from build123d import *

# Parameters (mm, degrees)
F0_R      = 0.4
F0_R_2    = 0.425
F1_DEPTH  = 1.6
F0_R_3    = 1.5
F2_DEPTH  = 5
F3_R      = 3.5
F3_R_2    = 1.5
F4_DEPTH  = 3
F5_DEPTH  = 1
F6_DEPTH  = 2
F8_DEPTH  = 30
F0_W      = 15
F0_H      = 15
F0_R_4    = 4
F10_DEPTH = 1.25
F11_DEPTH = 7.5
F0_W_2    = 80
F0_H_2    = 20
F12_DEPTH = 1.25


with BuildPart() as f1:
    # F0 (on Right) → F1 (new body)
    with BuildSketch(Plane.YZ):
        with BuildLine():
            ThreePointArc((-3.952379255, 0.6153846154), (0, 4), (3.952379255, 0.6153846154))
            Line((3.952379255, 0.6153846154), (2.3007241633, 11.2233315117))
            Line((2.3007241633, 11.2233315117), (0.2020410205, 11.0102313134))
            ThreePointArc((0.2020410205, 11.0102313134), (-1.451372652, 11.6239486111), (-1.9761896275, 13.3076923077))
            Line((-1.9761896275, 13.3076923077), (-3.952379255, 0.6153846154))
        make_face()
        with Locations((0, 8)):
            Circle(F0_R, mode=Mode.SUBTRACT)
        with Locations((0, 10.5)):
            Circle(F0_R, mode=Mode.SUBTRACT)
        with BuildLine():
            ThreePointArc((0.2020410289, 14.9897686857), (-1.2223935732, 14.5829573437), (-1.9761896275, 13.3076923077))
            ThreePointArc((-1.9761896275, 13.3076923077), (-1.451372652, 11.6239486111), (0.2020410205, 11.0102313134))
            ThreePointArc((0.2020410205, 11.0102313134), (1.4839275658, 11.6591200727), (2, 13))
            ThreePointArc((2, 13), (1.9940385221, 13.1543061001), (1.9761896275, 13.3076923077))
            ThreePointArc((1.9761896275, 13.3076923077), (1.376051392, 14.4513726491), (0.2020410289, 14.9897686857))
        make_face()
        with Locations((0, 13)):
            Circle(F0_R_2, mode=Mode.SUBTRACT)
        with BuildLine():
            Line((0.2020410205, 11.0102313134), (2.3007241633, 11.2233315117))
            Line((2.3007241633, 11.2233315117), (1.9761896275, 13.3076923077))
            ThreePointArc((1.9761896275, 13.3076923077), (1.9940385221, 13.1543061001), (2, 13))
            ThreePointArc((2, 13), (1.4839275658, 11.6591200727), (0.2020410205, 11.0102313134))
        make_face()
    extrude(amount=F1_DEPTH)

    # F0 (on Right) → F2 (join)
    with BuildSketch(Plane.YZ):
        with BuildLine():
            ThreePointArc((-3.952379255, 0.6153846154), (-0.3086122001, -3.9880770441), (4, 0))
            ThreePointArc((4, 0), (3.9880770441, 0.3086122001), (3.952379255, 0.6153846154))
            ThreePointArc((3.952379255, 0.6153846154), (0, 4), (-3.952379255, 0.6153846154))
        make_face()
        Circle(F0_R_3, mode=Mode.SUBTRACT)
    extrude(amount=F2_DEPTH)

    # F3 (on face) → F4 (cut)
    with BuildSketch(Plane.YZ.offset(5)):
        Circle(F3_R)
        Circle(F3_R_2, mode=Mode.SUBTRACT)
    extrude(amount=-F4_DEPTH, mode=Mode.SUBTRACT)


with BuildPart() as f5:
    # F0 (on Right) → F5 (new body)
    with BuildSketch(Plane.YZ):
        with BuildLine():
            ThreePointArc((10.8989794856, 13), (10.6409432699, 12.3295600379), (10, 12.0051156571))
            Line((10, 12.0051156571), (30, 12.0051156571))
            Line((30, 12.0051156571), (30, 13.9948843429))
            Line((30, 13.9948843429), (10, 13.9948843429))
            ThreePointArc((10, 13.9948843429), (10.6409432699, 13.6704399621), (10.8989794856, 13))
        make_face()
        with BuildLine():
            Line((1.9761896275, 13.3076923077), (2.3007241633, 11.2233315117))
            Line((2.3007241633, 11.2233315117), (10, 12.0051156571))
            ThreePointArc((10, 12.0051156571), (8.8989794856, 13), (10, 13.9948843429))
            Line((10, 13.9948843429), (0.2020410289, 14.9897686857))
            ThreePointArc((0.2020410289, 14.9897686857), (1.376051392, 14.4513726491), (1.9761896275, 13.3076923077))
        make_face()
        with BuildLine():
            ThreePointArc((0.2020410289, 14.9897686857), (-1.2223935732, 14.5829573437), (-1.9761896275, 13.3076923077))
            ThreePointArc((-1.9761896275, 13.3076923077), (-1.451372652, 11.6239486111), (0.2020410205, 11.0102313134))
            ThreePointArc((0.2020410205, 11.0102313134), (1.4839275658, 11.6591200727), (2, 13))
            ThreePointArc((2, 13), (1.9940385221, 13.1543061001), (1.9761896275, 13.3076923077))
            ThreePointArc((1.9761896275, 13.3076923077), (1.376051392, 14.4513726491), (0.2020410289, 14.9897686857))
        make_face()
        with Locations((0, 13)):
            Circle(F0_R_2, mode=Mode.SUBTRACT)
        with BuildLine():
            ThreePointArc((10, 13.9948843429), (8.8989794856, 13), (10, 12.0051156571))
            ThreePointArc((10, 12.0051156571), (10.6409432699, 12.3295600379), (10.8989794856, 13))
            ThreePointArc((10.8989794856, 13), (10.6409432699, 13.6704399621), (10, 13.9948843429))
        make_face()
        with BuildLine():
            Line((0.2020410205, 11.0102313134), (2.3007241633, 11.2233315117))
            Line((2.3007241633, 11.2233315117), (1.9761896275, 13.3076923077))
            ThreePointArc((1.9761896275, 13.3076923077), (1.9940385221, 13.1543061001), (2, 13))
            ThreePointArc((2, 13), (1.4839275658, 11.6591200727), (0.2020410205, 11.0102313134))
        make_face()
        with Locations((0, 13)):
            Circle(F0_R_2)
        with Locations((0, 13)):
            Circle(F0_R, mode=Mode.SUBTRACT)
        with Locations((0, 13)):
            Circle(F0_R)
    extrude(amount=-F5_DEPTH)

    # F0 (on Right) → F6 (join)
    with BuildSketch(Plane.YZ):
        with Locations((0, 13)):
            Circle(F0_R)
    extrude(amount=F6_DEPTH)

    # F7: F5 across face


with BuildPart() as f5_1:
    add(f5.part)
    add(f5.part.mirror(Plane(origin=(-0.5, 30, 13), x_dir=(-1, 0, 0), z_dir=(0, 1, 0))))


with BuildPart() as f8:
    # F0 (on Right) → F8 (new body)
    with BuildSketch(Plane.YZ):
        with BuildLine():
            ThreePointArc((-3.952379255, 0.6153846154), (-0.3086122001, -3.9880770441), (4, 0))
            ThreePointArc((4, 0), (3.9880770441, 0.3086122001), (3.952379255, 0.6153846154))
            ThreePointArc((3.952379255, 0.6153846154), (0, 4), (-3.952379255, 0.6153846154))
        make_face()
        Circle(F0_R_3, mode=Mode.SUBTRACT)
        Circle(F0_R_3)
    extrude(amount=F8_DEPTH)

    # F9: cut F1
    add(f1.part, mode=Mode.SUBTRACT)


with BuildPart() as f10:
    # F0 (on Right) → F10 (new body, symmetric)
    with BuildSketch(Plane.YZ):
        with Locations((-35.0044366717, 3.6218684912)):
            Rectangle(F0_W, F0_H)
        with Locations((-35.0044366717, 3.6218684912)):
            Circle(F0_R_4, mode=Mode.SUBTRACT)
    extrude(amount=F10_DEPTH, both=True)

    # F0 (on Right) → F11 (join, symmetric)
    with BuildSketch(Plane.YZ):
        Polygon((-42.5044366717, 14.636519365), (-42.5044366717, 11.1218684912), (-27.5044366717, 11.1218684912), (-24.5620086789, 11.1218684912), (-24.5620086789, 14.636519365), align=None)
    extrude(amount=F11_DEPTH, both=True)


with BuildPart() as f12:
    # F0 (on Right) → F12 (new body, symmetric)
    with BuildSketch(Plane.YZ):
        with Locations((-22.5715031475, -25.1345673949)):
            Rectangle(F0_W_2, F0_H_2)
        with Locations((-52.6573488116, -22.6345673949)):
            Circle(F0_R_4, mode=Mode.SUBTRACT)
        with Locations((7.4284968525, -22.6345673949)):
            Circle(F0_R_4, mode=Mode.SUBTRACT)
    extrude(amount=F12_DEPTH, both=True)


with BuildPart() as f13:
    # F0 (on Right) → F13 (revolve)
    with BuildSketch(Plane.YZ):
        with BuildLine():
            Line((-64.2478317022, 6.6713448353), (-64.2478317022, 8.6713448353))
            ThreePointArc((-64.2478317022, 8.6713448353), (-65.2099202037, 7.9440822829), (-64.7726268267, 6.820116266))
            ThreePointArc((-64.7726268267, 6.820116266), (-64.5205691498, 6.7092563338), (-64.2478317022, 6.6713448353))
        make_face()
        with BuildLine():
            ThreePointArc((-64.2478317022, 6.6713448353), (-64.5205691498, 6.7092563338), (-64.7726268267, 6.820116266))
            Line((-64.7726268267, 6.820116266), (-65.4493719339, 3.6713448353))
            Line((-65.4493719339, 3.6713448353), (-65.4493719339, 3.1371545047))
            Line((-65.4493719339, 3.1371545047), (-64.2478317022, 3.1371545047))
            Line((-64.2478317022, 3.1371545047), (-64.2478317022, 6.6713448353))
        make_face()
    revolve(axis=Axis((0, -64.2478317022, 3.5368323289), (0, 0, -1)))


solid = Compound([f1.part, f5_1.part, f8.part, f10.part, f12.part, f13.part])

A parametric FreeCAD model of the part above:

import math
import FreeCAD as App
import Part
import Sketcher

V = App.Vector
Q = App.Units.Quantity


def add_polygon(sketch, points):
    """Adds a closed chain of lines whose ends are joined by coincident constraints."""
    first, n = sketch.GeometryCount, len(points)
    for a, b in zip(points, points[1:] + points[:1]):
        sketch.addGeometry(Part.LineSegment(App.Vector(*a, 0), App.Vector(*b, 0)), False)
    for i in range(n):
        sketch.addConstraint(Sketcher.Constraint("Coincident", first + i, 2, first + (i + 1) % n, 1))

doc = App.newDocument("Part")
body = doc.addObject("PartDesign::Body", "Body")

sketch1 = doc.addObject("Sketcher::SketchObject", "Sketch")
body.addObject(sketch1)
sketch1.AttachmentSupport = (doc.YZ_Plane, [""])
sketch1.MapMode = "FlatFace"
sketch1.addGeometry([
    Part.ArcOfCircle(Part.Circle(V(0, 0, 0), V(0, 0, 1), 4), math.radians(8.849883), math.radians(171.150117)),
    Part.LineSegment(V(3.952379, 0.615385, 0), V(2.300724, 11.223332, 0)),
    Part.LineSegment(V(2.300724, 11.223332, 0), V(1.97619, 13.307692, 0)),
    Part.ArcOfCircle(Part.Circle(V(0, 13, 0), V(0, 0, 1), 2), math.radians(8.849883), math.radians(84.202061)),
    Part.ArcOfCircle(Part.Circle(V(0, 13, 0), V(0, 0, 1), 2), math.radians(84.202061), math.radians(171.150117)),
    Part.LineSegment(V(-1.97619, 13.307692, 0), V(-3.952379, 0.615385, 0)),
    Part.Circle(V(0, 8, 0), V(0, 0, 1), 0.4),
    Part.Circle(V(0, 10.5, 0), V(0, 0, 1), 0.4),
    Part.Circle(V(0, 13, 0), V(0, 0, 1), 0.425),
], False)
sketch1.addConstraint([
    Sketcher.Constraint("Tangent", 0, 1, 1, 1),
    Sketcher.Constraint("Coincident", 1, 2, 2, 1),
    Sketcher.Constraint("Tangent", 2, 2, 3, 1),
    Sketcher.Constraint("Tangent", 3, 2, 4, 1),
    Sketcher.Constraint("Tangent", 4, 2, 5, 1),
    Sketcher.Constraint("Tangent", 5, 2, 0, 2),
    Sketcher.Constraint("Coincident", 0, 3, -1, 1),
    Sketcher.Constraint("Coincident", 8, 3, 3, 3),
    Sketcher.Constraint("Equal", 3, 4),
    Sketcher.Constraint("Equal", 6, 7),
    Sketcher.Constraint("Symmetric", 2, 2, 4, 2, -2),
    Sketcher.Constraint("PointOnObject", 6, 3, -2),
    Sketcher.Constraint("PointOnObject", 7, 3, -2),
    Sketcher.Constraint("Radius", 0, Q("4 mm")),
    Sketcher.Constraint("Radius", 3, Q("2 mm")),
    Sketcher.Constraint("Diameter", 6, Q("0.8 mm")),
    Sketcher.Constraint("Diameter", 8, Q("0.85 mm")),
    Sketcher.Constraint("DistanceY", -1, 1, 3, 3, Q("13 mm")),
    Sketcher.Constraint("DistanceY", -1, 1, 6, 3, Q("8 mm")),
    Sketcher.Constraint("DistanceY", -1, 1, 7, 3, Q("10.5 mm")),
    Sketcher.Constraint("Distance", 1, Q("10.735758 mm")),
    Sketcher.Constraint("DistanceX", -1, 1, 3, 2, Q("0.202041 mm")),
])
pad1 = doc.addObject("PartDesign::Pad", "Pad")
body.addObject(pad1)
pad1.Profile = sketch1
pad1.Length = 1.6

sketch2 = doc.addObject("Sketcher::SketchObject", "Sketch001")
body.addObject(sketch2)
sketch2.AttachmentSupport = (doc.YZ_Plane, [""])
sketch2.MapMode = "FlatFace"
sketch2.addGeometry([
    Part.ArcOfCircle(Part.Circle(V(0, 0, 0), V(0, 0, 1), 4), math.radians(171.150117), math.radians(360)),
    Part.ArcOfCircle(Part.Circle(V(0, 0, 0), V(0, 0, 1), 4), math.radians(0), math.radians(8.849883)),
    Part.ArcOfCircle(Part.Circle(V(0, 0, 0), V(0, 0, 1), 4), math.radians(8.849883), math.radians(171.150117)),
    Part.Circle(V(0, 0, 0), V(0, 0, 1), 1.5),
], False)
sketch2.addConstraint([
    Sketcher.Constraint("Tangent", 0, 2, 1, 1),
    Sketcher.Constraint("Tangent", 1, 2, 2, 1),
    Sketcher.Constraint("Tangent", 2, 2, 0, 1),
    Sketcher.Constraint("Coincident", 0, 3, -1, 1),
    Sketcher.Constraint("Coincident", 3, 3, -1, 1),
    Sketcher.Constraint("PointOnObject", 0, 2, -1),
    Sketcher.Constraint("Horizontal", 1, 2, 2, 2),
    Sketcher.Constraint("Diameter", 3, Q("3 mm")),
    Sketcher.Constraint("Radius", 0, Q("4 mm")),
    Sketcher.Constraint("DistanceX", -1, 1, 1, 2, Q("3.952379 mm")),
])
pad2 = doc.addObject("PartDesign::Pad", "Pad001")
body.addObject(pad2)
pad2.Profile = sketch2
pad2.Length = 5

sketch3 = doc.addObject("Sketcher::SketchObject", "Sketch002")
body.addObject(sketch3)
sketch3.AttachmentSupport = (doc.YZ_Plane, [""])
sketch3.MapMode = "FlatFace"
sketch3.AttachmentOffset = App.Placement(V(0, 0, 5), App.Rotation())
sketch3.addGeometry([
    Part.Circle(V(0, 0, 0), V(0, 0, 1), 3.5),
    Part.Circle(V(0, 0, 0), V(0, 0, 1), 1.5),
], False)
sketch3.addConstraint([
    Sketcher.Constraint("Coincident", 0, 3, -1, 1),
    Sketcher.Constraint("Coincident", 1, 3, -1, 1),
    Sketcher.Constraint("Diameter", 0, Q("7 mm")),
    Sketcher.Constraint("Diameter", 1, Q("3 mm")),
])
pocket1 = doc.addObject("PartDesign::Pocket", "Pocket")
body.addObject(pocket1)
pocket1.Profile = sketch3
pocket1.Length = 3
body2 = doc.addObject("PartDesign::Body", "Body001")

sketch4 = doc.addObject("Sketcher::SketchObject", "Sketch003")
body2.addObject(sketch4)
sketch4.AttachmentSupport = (doc.getObject("YZ_Plane001"), [""])
sketch4.MapMode = "FlatFace"
sketch4.addGeometry([
    Part.LineSegment(V(10, 12.005116, 0), V(30, 12.005116, 0)),
    Part.LineSegment(V(30, 12.005116, 0), V(30, 13.994884, 0)),
    Part.LineSegment(V(30, 13.994884, 0), V(10, 13.994884, 0)),
    Part.LineSegment(V(10, 13.994884, 0), V(0.202041, 14.989769, 0)),
    Part.ArcOfCircle(Part.Circle(V(0, 13, 0), V(0, 0, 1), 2), math.radians(84.202061), math.radians(171.150117)),
    Part.ArcOfCircle(Part.Circle(V(0, 13, 0), V(0, 0, 1), 2), math.radians(171.150117), math.radians(275.797939)),
    Part.LineSegment(V(0.202041, 11.010231, 0), V(2.300724, 11.223332, 0)),
    Part.LineSegment(V(2.300724, 11.223332, 0), V(10, 12.005116, 0)),
], False)
sketch4.addConstraint([
    Sketcher.Constraint("Coincident", 0, 2, 1, 1),
    Sketcher.Constraint("Coincident", 1, 2, 2, 1),
    Sketcher.Constraint("Coincident", 2, 2, 3, 1),
    Sketcher.Constraint("Tangent", 3, 2, 4, 1),
    Sketcher.Constraint("Tangent", 4, 2, 5, 1),
    Sketcher.Constraint("Tangent", 5, 2, 6, 1),
    Sketcher.Constraint("Coincident", 6, 2, 7, 1),
    Sketcher.Constraint("Coincident", 7, 2, 0, 1),
    Sketcher.Constraint("Horizontal", 0),
    Sketcher.Constraint("Vertical", 1),
    Sketcher.Constraint("Horizontal", 2),
    Sketcher.Constraint("Equal", 4, 5),
    Sketcher.Constraint("PointOnObject", 4, 3, -2),
    Sketcher.Constraint("Parallel", 6, 7),
    Sketcher.Constraint("Vertical", 3, 2, 5, 2),
    Sketcher.Constraint("Vertical", 2, 2, 7, 2),
    Sketcher.Constraint("Radius", 4, Q("2 mm")),
    Sketcher.Constraint("DistanceX", 0, 1, 0, 2, Q("20 mm")),
    Sketcher.Constraint("DistanceY", -1, 1, 4, 3, Q("13 mm")),
    Sketcher.Constraint("DistanceX", -1, 1, 0, 2, Q("30 mm")),
    Sketcher.Constraint("DistanceY", 1, 1, 1, 2, Q("1.989769 mm")),
    Sketcher.Constraint("DistanceY", 5, 2, 6, 2, Q("0.2131 mm")),
    Sketcher.Constraint("DistanceX", 4, 2, -1, 1, Q("1.97619 mm")),
])
pad3 = doc.addObject("PartDesign::Pad", "Pad002")
body2.addObject(pad3)
pad3.Profile = sketch4
pad3.Length = 1
pad3.Reversed = True

sketch5 = doc.addObject("Sketcher::SketchObject", "Sketch004")
body2.addObject(sketch5)
sketch5.AttachmentSupport = (doc.getObject("YZ_Plane001"), [""])
sketch5.MapMode = "FlatFace"
sketch5.addGeometry(Part.Circle(V(0, 13, 0), V(0, 0, 1), 0.4), False)
sketch5.addConstraint([
    Sketcher.Constraint("PointOnObject", 0, 3, -2),
    Sketcher.Constraint("Diameter", 0, Q("0.8 mm")),
    Sketcher.Constraint("DistanceY", -1, 1, 0, 3, Q("13 mm")),
])
pad4 = doc.addObject("PartDesign::Pad", "Pad003")
body2.addObject(pad4)
pad4.Profile = sketch5
pad4.Length = 2
body3 = doc.addObject("PartDesign::Body", "Body002")
doc.recompute()

body3.BaseFeature = body2
doc.recompute()

mirroring = doc.addObject("Part::Mirroring", "Mirroring")
mirroring.Source = body2
mirroring.Base = V(-0.5, 30, 13)
mirroring.Normal = V(0, 1, 0)
body4 = doc.addObject("PartDesign::Body", "Body003")
body4.BaseFeature = mirroring
boolean = doc.addObject("PartDesign::Boolean", "Boolean")
body3.addObject(boolean)
boolean.Type = "Fuse"
boolean.addObjects([body4])
doc.recompute()
body5 = doc.addObject("PartDesign::Body", "Body004")

sketch6 = doc.addObject("Sketcher::SketchObject", "Sketch005")
body5.addObject(sketch6)
sketch6.AttachmentSupport = (doc.getObject("YZ_Plane004"), [""])
sketch6.MapMode = "FlatFace"
sketch6.addGeometry([
    Part.ArcOfCircle(Part.Circle(V(0, 0, 0), V(0, 0, 1), 4), math.radians(171.150117), math.radians(360)),
    Part.ArcOfCircle(Part.Circle(V(0, 0, 0), V(0, 0, 1), 4), math.radians(0), math.radians(8.849883)),
    Part.ArcOfCircle(Part.Circle(V(0, 0, 0), V(0, 0, 1), 4), math.radians(8.849883), math.radians(171.150117)),
], False)
sketch6.addConstraint([
    Sketcher.Constraint("Tangent", 0, 2, 1, 1),
    Sketcher.Constraint("Tangent", 1, 2, 2, 1),
    Sketcher.Constraint("Tangent", 2, 2, 0, 1),
    Sketcher.Constraint("Coincident", 0, 3, -1, 1),
    Sketcher.Constraint("PointOnObject", 0, 2, -1),
    Sketcher.Constraint("Horizontal", 1, 2, 2, 2),
    Sketcher.Constraint("Radius", 0, Q("4 mm")),
    Sketcher.Constraint("DistanceX", -1, 1, 1, 2, Q("3.952379 mm")),
])
pad5 = doc.addObject("PartDesign::Pad", "Pad004")
body5.addObject(pad5)
pad5.Profile = sketch6
pad5.Length = 30
doc.recompute()

body6 = doc.addObject("PartDesign::Body", "Body005")
body6.BaseFeature = body
boolean2 = doc.addObject("PartDesign::Boolean", "Boolean001")
body5.addObject(boolean2)
boolean2.Type = "Cut"
boolean2.addObjects([body6])
doc.recompute()
body7 = doc.addObject("PartDesign::Body", "Body006")

sketch7 = doc.addObject("Sketcher::SketchObject", "Sketch006")
body7.addObject(sketch7)
sketch7.AttachmentSupport = (doc.getObject("YZ_Plane006"), [""])
sketch7.MapMode = "FlatFace"
add_polygon(sketch7, [(-42.504437, 11.121868), (-42.504437, -3.878132), (-27.504437, -3.878132), (-27.504437, 11.121868)])
sketch7.addGeometry(Part.Circle(V(-35.004437, 3.621868, 0), V(0, 0, 1), 4), False)
sketch7.addConstraint([
    Sketcher.Constraint("Vertical", 0),
    Sketcher.Constraint("Horizontal", 1),
    Sketcher.Constraint("Vertical", 2),
    Sketcher.Constraint("Horizontal", 3),
    Sketcher.Constraint("Equal", 3, 0),
    Sketcher.Constraint("Diameter", 4, Q("8 mm")),
    Sketcher.Constraint("DistanceX", 1, 1, 1, 2, Q("15 mm")),
    Sketcher.Constraint("DistanceX", 0, 2, 4, 3, Q("7.5 mm")),
    Sketcher.Constraint("DistanceY", 0, 2, 4, 3, Q("7.5 mm")),
    Sketcher.Constraint("DistanceY", -1, 1, 4, 3, Q("3.621868 mm")),
    Sketcher.Constraint("DistanceX", 4, 3, -1, 1, Q("35.004437 mm")),
])
pad6 = doc.addObject("PartDesign::Pad", "Pad005")
body7.addObject(pad6)
pad6.Profile = sketch7
pad6.Length = 2.5
pad6.Midplane = True

sketch8 = doc.addObject("Sketcher::SketchObject", "Sketch007")
body7.addObject(sketch8)
sketch8.AttachmentSupport = (doc.getObject("YZ_Plane006"), [""])
sketch8.MapMode = "FlatFace"
add_polygon(sketch8, [(-42.504437, 14.636519), (-42.504437, 11.121868), (-24.562009, 11.121868), (-24.562009, 14.636519)])
sketch8.addConstraint([
    Sketcher.Constraint("Vertical", 0),
    Sketcher.Constraint("Horizontal", 1),
    Sketcher.Constraint("Vertical", 2),
    Sketcher.Constraint("Horizontal", 3),
    Sketcher.Constraint("DistanceY", 0, 2, 0, 1, Q("3.514651 mm")),
    Sketcher.Constraint("DistanceX", 1, 1, 1, 2, Q("17.942428 mm")),
    Sketcher.Constraint("DistanceY", -1, 1, 0, 2, Q("11.121868 mm")),
    Sketcher.Constraint("DistanceX", 1, 2, -1, 1, Q("24.562009 mm")),
])
pad7 = doc.addObject("PartDesign::Pad", "Pad006")
body7.addObject(pad7)
pad7.Profile = sketch8
pad7.Length = 15
pad7.Midplane = True
body8 = doc.addObject("PartDesign::Body", "Body007")

sketch9 = doc.addObject("Sketcher::SketchObject", "Sketch008")
body8.addObject(sketch9)
sketch9.AttachmentSupport = (doc.getObject("YZ_Plane007"), [""])
sketch9.MapMode = "FlatFace"
add_polygon(sketch9, [(-62.571503, -15.134567), (-62.571503, -35.134567), (17.428497, -35.134567), (17.428497, -15.134567)])
sketch9.addGeometry(Part.Circle(V(-52.657349, -22.634567, 0), V(0, 0, 1), 4), False)
sketch9.addGeometry(Part.Circle(V(7.428497, -22.634567, 0), V(0, 0, 1), 4), False)
sketch9.addConstraint([
    Sketcher.Constraint("Vertical", 0),
    Sketcher.Constraint("Horizontal", 1),
    Sketcher.Constraint("Vertical", 2),
    Sketcher.Constraint("Horizontal", 3),
    Sketcher.Constraint("Equal", 4, 5),
    Sketcher.Constraint("Horizontal", 4, 3, 5, 3),
    Sketcher.Constraint("Diameter", 4, Q("8 mm")),
    Sketcher.Constraint("DistanceX", 1, 1, 1, 2, Q("80 mm")),
    Sketcher.Constraint("DistanceY", 0, 2, 0, 1, Q("20 mm")),
    Sketcher.Constraint("DistanceX", 0, 2, 5, 3, Q("70 mm")),
    Sketcher.Constraint("DistanceY", 0, 2, 4, 3, Q("12.5 mm")),
    Sketcher.Constraint("DistanceX", 4, 3, -1, 1, Q("52.657349 mm")),
    Sketcher.Constraint("DistanceY", 4, 3, -1, 1, Q("22.634567 mm")),
    Sketcher.Constraint("DistanceX", -1, 1, 5, 3, Q("7.428497 mm")),
])
pad8 = doc.addObject("PartDesign::Pad", "Pad007")
body8.addObject(pad8)
pad8.Profile = sketch9
pad8.Length = 2.5
pad8.Midplane = True
body9 = doc.addObject("PartDesign::Body", "Body008")

sketch10 = doc.addObject("Sketcher::SketchObject", "Sketch009")
body9.addObject(sketch10)
sketch10.AttachmentSupport = (doc.getObject("YZ_Plane008"), [""])
sketch10.MapMode = "FlatFace"
sketch10.addGeometry([
    Part.ArcOfCircle(Part.Circle(V(-64.247832, 7.671345, 0), V(0, 0, 1), 1), math.radians(90), math.radians(238.345548)),
    Part.LineSegment(V(-64.772627, 6.820116, 0), V(-65.449372, 3.671345, 0)),
    Part.LineSegment(V(-65.449372, 3.671345, 0), V(-65.449372, 3.137155, 0)),
    Part.LineSegment(V(-65.449372, 3.137155, 0), V(-64.247832, 3.137155, 0)),
    Part.LineSegment(V(-64.247832, 3.137155, 0), V(-64.247832, 8.671345, 0)),
], False)
sketch10.addGeometry(Part.LineSegment(V(-64.247832, 8.671345, 0), V(-64.247832, 3.137155, 0)), True)
sketch10.addConstraint([
    Sketcher.Constraint("Coincident", 0, 2, 1, 1),
    Sketcher.Constraint("Coincident", 1, 2, 2, 1),
    Sketcher.Constraint("Coincident", 2, 2, 3, 1),
    Sketcher.Constraint("Coincident", 3, 2, 4, 1),
    Sketcher.Constraint("Coincident", 4, 2, 0, 1),
    Sketcher.Constraint("Vertical", 2),
    Sketcher.Constraint("Horizontal", 3),
    Sketcher.Constraint("Vertical", 4),
    Sketcher.Constraint("Vertical", 5),
    Sketcher.Constraint("Coincident", 5, 1, 4, 2),
    Sketcher.Constraint("Horizontal", 2, 2, 5, 2),
    Sketcher.Constraint("Vertical", 0, 3, 3, 2),
    Sketcher.Constraint("Radius", 0, Q("1 mm")),
    Sketcher.Constraint("DistanceY", 1, 2, 0, 3, Q("4 mm")),
    Sketcher.Constraint("DistanceX", 3, 1, 3, 2, Q("1.20154 mm")),
    Sketcher.Constraint("DistanceY", 2, 2, 2, 1, Q("0.53419 mm")),
    Sketcher.Constraint("DistanceX", 0, 3, -1, 1, Q("64.247832 mm")),
    Sketcher.Constraint("DistanceY", 0, 2, 0, 3, Q("0.851229 mm")),
    Sketcher.Constraint("DistanceY", -1, 1, 0, 3, Q("7.671345 mm")),
])
revolution = doc.addObject("PartDesign::Revolution", "Revolution")
body9.addObject(revolution)
revolution.Profile = sketch10
revolution.ReferenceAxis = (sketch10, ["Axis0"])
revolution.Angle = 360

doc.recompute()
